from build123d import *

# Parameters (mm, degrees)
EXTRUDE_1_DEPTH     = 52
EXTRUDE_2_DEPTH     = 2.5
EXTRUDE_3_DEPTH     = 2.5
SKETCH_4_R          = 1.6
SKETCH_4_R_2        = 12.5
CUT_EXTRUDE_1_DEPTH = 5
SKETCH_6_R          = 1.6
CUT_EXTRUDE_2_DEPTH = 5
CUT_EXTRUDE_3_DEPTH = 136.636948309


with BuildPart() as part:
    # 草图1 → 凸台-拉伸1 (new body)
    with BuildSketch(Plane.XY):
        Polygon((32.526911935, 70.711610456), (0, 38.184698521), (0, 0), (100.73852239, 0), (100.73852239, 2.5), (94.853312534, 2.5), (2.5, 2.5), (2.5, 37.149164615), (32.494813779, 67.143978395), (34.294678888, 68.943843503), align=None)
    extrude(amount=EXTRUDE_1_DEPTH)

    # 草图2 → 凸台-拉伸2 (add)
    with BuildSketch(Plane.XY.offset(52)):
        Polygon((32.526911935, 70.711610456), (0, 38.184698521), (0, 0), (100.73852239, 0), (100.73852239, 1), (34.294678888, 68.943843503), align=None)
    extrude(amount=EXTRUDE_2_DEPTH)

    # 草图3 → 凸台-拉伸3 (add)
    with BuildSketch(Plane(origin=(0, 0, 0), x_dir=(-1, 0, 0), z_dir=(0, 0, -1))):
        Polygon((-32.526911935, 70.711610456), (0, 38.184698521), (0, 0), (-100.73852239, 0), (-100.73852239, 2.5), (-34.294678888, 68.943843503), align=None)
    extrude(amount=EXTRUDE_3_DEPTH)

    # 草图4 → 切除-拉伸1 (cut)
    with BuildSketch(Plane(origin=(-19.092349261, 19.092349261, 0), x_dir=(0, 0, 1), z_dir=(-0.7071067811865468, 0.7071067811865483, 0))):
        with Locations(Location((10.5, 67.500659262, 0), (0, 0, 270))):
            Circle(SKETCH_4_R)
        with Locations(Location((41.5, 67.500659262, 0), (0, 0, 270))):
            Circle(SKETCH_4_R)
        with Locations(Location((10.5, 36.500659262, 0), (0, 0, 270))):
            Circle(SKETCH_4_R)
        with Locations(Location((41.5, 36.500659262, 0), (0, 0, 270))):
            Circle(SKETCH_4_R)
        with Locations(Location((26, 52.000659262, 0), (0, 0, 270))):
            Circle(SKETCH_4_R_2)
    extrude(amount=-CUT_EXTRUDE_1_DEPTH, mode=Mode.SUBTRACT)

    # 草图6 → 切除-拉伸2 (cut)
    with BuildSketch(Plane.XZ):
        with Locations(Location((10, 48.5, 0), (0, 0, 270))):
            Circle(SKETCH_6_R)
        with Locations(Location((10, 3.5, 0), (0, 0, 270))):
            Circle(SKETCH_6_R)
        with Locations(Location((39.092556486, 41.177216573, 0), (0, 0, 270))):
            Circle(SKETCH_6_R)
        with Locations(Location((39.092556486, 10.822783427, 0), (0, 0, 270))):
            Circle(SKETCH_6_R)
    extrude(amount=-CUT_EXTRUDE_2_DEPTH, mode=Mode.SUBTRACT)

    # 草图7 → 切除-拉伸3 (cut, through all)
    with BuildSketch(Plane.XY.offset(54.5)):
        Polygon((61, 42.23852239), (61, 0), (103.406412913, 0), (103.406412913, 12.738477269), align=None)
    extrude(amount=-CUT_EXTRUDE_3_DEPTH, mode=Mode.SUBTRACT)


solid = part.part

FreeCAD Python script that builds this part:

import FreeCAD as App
import Part
import Sketcher
from FreeCAD import Vector
Q = App.Units.Quantity


def add_polygon(sketch, points):
    """Adds a closed chain of lines whose ends are joined by coincident constraints."""
    first, n = sketch.GeometryCount, len(points)
    for a, b in zip(points, points[1:] + points[:1]):
        sketch.addGeometry(Part.LineSegment(App.Vector(*a, 0), App.Vector(*b, 0)), False)
    for i in range(n):
        sketch.addConstraint(Sketcher.Constraint("Coincident", first + i, 2, first + (i + 1) % n, 1))

doc = App.newDocument("Part")
body = doc.addObject("PartDesign::Body", "Body")

sketch1 = body.newObject("Sketcher::SketchObject", "Sketch")
sketch1.AttachmentSupport = (doc.getObject("XY_Plane"), [""])
sketch1.MapMode = "FlatFace"
add_polygon(sketch1, [(32.5, 70.7), (0, 38.2), (0, 0), (100.7, 0), (100.7, 2.5), (2.5, 2.5), (2.5, 37.1), (32.5, 67.1), (34.3, 68.9)])
sketch1.addConstraint([
    Sketcher.Constraint("Vertical", 1),
    Sketcher.Constraint("Horizontal", 2),
    Sketcher.Constraint("Vertical", 3),
    Sketcher.Constraint("Horizontal", 4),
    Sketcher.Constraint("Vertical", 5),
    Sketcher.Constraint("Coincident", 1, 2, -1, 1),
    Sketcher.Constraint("Parallel", 0, 6),
    Sketcher.Constraint("Parallel", 6, 7),
    Sketcher.Constraint("Perpendicular", 7, 8),
    Sketcher.Constraint("Angle", 0, Q("-135 deg")),
    Sketcher.Constraint("Distance", 0, Q("46 mm")),
    Sketcher.Constraint("DistanceY", 3, 1, 3, 2, Q("2.5 mm")),
    Sketcher.Constraint("Distance", 8, Q("2.5 mm")),
    Sketcher.Constraint("DistanceX", -1, 1, 4, 2, Q("2.5 mm")),
    Sketcher.Constraint("DistanceY", 1, 2, 1, 1, Q("38.184699 mm")),
    Sketcher.Constraint("DistanceX", 6, 2, 8, 2, Q("0.032098 mm")),
    Sketcher.Constraint("DistanceX", 2, 1, 2, 2, Q("100.738522 mm")),
])
pad1 = body.newObject("PartDesign::Pad", "Pad")
pad1.Profile = sketch1
pad1.Length = 52

sketch2 = body.newObject("Sketcher::SketchObject", "Sketch001")
sketch2.AttachmentSupport = (doc.getObject("XY_Plane"), [""])
sketch2.MapMode = "FlatFace"
sketch2.AttachmentOffset = App.Placement(Vector(0, 0, 52), App.Rotation())
add_polygon(sketch2, [(32.5, 70.7), (0, 38.2), (0, 0), (100.7, 0), (100.7, 1), (34.3, 68.9)])
sketch2.addConstraint([
    Sketcher.Constraint("Vertical", 1),
    Sketcher.Constraint("Horizontal", 2),
    Sketcher.Constraint("Vertical", 3),
    Sketcher.Constraint("Coincident", 1, 2, -1, 1),
    Sketcher.Constraint("Perpendicular", 0, 5),
    Sketcher.Constraint("DistanceY", 3, 1, 3, 2, Q("1 mm")),
    Sketcher.Constraint("Angle", 0, Q("-135 deg")),
    Sketcher.Constraint("Distance", 0, Q("46 mm")),
    Sketcher.Constraint("Distance", 5, Q("2.5 mm")),
    Sketcher.Constraint("DistanceY", 1, 2, 1, 1, Q("38.184699 mm")),
    Sketcher.Constraint("DistanceX", 2, 1, 2, 2, Q("100.738522 mm")),
])
pad2 = body.newObject("PartDesign::Pad", "Pad001")
pad2.Profile = sketch2
pad2.Length = 2.5

sketch3 = body.newObject("Sketcher::SketchObject", "Sketch002")
sketch3.AttachmentSupport = (doc.getObject("XY_Plane"), [""])
sketch3.MapMode = "FlatFace"
add_polygon(sketch3, [(0, 38.2), (32.5, 70.7), (34.3, 68.9), (100.7, 2.5), (100.7, 0), (0, 0)])
sketch3.addConstraint([
    Sketcher.Constraint("Vertical", 3),
    Sketcher.Constraint("Horizontal", 4),
    Sketcher.Constraint("Vertical", 5),
    Sketcher.Constraint("Coincident", 4, 2, -1, 1),
    Sketcher.Constraint("Perpendicular", 0, 1),
    Sketcher.Constraint("Parallel", 1, 2),
    Sketcher.Constraint("Angle", 0, Q("45 deg")),
    Sketcher.Constraint("Distance", 0, Q("46 mm")),
    Sketcher.Constraint("DistanceY", 3, 2, 3, 1, Q("2.5 mm")),
    Sketcher.Constraint("Distance", 1, Q("2.5 mm")),
    Sketcher.Constraint("DistanceY", 5, 1, 5, 2, Q("38.184699 mm")),
])
pad3 = body.newObject("PartDesign::Pad", "Pad002")
pad3.Profile = sketch3
pad3.Length = 2.5
pad3.Reversed = True

sketch4 = body.newObject("Sketcher::SketchObject", "Sketch003")
sketch4.Placement = App.Placement(Vector(-19.092349, 19.092349, 0), App.Rotation(Vector(0, 0, 1), Vector(0.707106781, 0.707106781, 0), Vector(-0.707106781, 0.707106781, 0), "ZXY"))
sketch4.addGeometry([
    Part.Circle(Vector(10.5, 67.5, 0), Vector(0, 0, 1), 1.6),
    Part.Circle(Vector(41.5, 67.5, 0), Vector(0, 0, 1), 1.6),
    Part.Circle(Vector(10.5, 36.5, 0), Vector(0, 0, 1), 1.6),
    Part.Circle(Vector(41.5, 36.5, 0), Vector(0, 0, 1), 1.6),
    Part.Circle(Vector(26, 52, 0), Vector(0, 0, 1), 12.5),
], False)
sketch4.addConstraint([
    Sketcher.Constraint("Equal", 0, 1),
    Sketcher.Constraint("Equal", 1, 2),
    Sketcher.Constraint("Equal", 2, 3),
    Sketcher.Constraint("Horizontal", 0, 3, 1, 3),
    Sketcher.Constraint("Horizontal", 2, 3, 3, 3),
    Sketcher.Constraint("Vertical", 0, 3, 2, 3),
    Sketcher.Constraint("Vertical", 1, 3, 3, 3),
    Sketcher.Constraint("Diameter", 4, Q("25 mm")),
    Sketcher.Constraint("Diameter", 0, Q("3.2 mm")),
    Sketcher.Constraint("DistanceX", -1, 1, 4, 3, Q("26 mm")),
    Sketcher.Constraint("DistanceX", 0, 3, 1, 3, Q("31 mm")),
    Sketcher.Constraint("DistanceY", 2, 3, 0, 3, Q("31 mm")),
    Sketcher.Constraint("DistanceX", -1, 1, 0, 3, Q("10.5 mm")),
    Sketcher.Constraint("DistanceY", 4, 3, 0, 3, Q("15.5 mm")),
    Sketcher.Constraint("DistanceY", -1, 1, 0, 3, Q("67.500659 mm")),
])
pocket1 = body.newObject("PartDesign::Pocket", "Pocket")
pocket1.Profile = sketch4
pocket1.Length = 5

sketch5 = body.newObject("Sketcher::SketchObject", "Sketch004")
sketch5.AttachmentSupport = (doc.getObject("XZ_Plane"), [""])
sketch5.MapMode = "FlatFace"
sketch5.addGeometry([
    Part.Circle(Vector(10, 48.5, 0), Vector(0, 0, 1), 1.6),
    Part.Circle(Vector(10, 3.5, 0), Vector(0, 0, 1), 1.6),
    Part.Circle(Vector(39.1, 41.2, 0), Vector(0, 0, 1), 1.6),
    Part.Circle(Vector(39.1, 10.8, 0), Vector(0, 0, 1), 1.6),
], False)
sketch5.addConstraint([
    Sketcher.Constraint("Equal", 0, 1),
    Sketcher.Constraint("Equal", 1, 2),
    Sketcher.Constraint("Equal", 2, 3),
    Sketcher.Constraint("Vertical", 0, 3, 1, 3),
    Sketcher.Constraint("Vertical", 2, 3, 3, 3),
    Sketcher.Constraint("Diameter", 0, Q("3.2 mm")),
    Sketcher.Constraint("DistanceX", -1, 1, 0, 3, Q("10 mm")),
    Sketcher.Constraint("DistanceY", 1, 3, 0, 3, Q("45 mm")),
    Sketcher.Constraint("DistanceY", -1, 1, 0, 3, Q("48.5 mm")),
    Sketcher.Constraint("DistanceX", -1, 1, 2, 3, Q("39.092556 mm")),
    Sketcher.Constraint("DistanceY", -1, 1, 2, 3, Q("41.177217 mm")),
    Sketcher.Constraint("DistanceY", -1, 1, 3, 3, Q("10.822783 mm")),
])
pocket2 = body.newObject("PartDesign::Pocket", "Pocket001")
pocket2.Profile = sketch5
pocket2.Length = 5

sketch6 = body.newObject("Sketcher::SketchObject", "Sketch005")
sketch6.AttachmentSupport = (doc.getObject("XY_Plane"), [""])
sketch6.MapMode = "FlatFace"
sketch6.AttachmentOffset = App.Placement(Vector(0, 0, 54.5), App.Rotation())
add_polygon(sketch6, [(61, 42), (61, 0), (103, 0), (103, 13)])
sketch6.addConstraint([
    Sketcher.Constraint("Vertical", 0),
    Sketcher.Constraint("Horizontal", 1),
    Sketcher.Constraint("Vertical", 2),
    Sketcher.Constraint("PointOnObject", 0, 2, -1),
    Sketcher.Constraint("DistanceX", -1, 1, 0, 2, Q("61 mm")),
    Sketcher.Constraint("DistanceX", 1, 1, 1, 2, Q("42.406413 mm")),
    Sketcher.Constraint("DistanceY", 0, 2, 0, 1, Q("42.238522 mm")),
    Sketcher.Constraint("DistanceY", 2, 1, 2, 2, Q("12.738477 mm")),
])
pocket3 = body.newObject("PartDesign::Pocket", "Pocket002")
pocket3.Profile = sketch6
pocket3.Type = "ThroughAll"

doc.recompute()
